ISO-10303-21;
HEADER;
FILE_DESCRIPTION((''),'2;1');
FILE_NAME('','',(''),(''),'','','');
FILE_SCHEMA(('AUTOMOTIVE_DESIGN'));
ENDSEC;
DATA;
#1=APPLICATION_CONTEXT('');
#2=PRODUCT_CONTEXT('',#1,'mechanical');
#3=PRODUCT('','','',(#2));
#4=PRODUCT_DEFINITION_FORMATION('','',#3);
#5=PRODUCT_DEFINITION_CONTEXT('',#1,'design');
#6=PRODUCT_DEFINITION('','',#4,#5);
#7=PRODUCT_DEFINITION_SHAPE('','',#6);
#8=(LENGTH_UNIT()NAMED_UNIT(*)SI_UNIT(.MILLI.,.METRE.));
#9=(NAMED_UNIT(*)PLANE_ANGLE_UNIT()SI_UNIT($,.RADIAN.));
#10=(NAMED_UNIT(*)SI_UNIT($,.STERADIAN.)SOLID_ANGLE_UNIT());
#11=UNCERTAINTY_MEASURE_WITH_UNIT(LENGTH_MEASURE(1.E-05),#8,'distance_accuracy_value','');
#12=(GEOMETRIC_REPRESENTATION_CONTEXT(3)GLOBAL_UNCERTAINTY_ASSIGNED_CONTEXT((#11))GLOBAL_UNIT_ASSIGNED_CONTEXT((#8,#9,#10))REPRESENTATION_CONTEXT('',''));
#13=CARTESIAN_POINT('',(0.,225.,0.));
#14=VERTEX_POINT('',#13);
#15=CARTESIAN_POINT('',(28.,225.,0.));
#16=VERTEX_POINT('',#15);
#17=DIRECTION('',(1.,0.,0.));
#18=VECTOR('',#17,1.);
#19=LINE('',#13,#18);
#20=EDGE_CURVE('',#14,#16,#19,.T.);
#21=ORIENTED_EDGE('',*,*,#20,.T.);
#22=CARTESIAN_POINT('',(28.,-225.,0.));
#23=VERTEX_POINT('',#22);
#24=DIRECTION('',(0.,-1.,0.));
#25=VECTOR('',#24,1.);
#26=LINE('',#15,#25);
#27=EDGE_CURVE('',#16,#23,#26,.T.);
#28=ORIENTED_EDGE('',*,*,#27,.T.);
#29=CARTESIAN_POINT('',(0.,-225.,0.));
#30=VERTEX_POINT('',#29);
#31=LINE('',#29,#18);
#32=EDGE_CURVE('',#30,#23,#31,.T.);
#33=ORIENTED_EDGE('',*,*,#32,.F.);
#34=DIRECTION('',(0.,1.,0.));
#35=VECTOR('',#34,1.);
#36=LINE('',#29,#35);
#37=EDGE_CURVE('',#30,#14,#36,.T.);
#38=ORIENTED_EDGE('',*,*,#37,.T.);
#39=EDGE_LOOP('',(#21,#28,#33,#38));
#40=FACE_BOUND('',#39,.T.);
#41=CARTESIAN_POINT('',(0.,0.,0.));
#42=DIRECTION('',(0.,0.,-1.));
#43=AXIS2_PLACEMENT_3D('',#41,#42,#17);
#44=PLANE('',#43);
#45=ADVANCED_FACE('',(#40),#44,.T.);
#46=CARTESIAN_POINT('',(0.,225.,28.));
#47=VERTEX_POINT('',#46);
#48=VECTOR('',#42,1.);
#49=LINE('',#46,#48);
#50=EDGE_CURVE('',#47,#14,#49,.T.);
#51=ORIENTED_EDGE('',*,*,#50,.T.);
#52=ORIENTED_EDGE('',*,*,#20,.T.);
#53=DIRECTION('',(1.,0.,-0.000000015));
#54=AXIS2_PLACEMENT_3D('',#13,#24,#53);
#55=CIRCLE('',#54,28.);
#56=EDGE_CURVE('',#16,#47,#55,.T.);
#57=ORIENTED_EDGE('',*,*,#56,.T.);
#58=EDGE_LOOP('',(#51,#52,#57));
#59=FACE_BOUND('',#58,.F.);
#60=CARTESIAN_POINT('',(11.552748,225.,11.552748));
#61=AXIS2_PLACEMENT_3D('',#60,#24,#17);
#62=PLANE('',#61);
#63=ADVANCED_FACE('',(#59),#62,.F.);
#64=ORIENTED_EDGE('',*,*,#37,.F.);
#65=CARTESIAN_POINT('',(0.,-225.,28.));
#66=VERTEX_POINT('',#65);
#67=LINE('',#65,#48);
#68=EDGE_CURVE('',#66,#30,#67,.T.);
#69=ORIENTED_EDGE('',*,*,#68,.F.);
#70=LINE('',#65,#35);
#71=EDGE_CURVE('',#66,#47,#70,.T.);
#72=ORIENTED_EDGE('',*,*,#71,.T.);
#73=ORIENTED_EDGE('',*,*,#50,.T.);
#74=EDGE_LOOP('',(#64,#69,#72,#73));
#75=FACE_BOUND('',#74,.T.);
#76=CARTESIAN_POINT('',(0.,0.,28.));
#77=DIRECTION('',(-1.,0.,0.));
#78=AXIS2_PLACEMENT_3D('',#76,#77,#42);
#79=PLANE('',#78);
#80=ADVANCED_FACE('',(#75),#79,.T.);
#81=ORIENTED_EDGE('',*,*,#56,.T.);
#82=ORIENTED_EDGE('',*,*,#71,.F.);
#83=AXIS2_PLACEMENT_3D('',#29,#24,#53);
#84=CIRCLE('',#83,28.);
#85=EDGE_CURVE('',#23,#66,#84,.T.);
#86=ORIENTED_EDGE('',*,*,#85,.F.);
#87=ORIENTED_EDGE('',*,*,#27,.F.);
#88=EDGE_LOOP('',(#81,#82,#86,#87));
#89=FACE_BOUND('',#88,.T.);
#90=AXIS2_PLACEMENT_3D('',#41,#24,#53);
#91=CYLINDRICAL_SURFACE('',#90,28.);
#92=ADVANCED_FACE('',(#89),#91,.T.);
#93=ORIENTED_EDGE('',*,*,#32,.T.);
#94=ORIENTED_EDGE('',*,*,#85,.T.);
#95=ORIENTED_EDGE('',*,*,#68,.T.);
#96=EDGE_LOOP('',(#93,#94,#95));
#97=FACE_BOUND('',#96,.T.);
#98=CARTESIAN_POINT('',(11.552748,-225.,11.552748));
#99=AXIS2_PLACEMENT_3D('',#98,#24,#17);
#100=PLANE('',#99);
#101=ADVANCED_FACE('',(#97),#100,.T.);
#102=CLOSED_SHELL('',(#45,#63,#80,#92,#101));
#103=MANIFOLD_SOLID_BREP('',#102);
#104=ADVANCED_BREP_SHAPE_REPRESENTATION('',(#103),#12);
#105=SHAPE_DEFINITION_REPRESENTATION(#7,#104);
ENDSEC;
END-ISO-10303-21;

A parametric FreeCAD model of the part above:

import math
import FreeCAD as App
import Part
import Sketcher
from FreeCAD import Vector
Q = App.Units.Quantity

doc = App.newDocument("Part")
body = doc.addObject("PartDesign::Body", "Body")

# Sketch on XZ plane
sketch1 = doc.addObject("Sketcher::SketchObject", "Sketch")
body.addObject(sketch1)
sketch1.AttachmentSupport = (doc.XZ_Plane, [""])
sketch1.MapMode = "FlatFace"
sketch1.addGeometry([
    Part.LineSegment(Vector(0, 0, 0), Vector(28, 0, 0)),
    Part.ArcOfCircle(Part.Circle(Vector(0, 0, 0), Vector(0, 0, 1), 28), math.radians(-0.000001), math.radians(90.000001)),
    Part.LineSegment(Vector(0, 28, 0), Vector(0, 0, 0)),
], False)
sketch1.addConstraint([
    Sketcher.Constraint("Coincident", 0, 2, 1, 1),
    Sketcher.Constraint("Coincident", 1, 2, 2, 1),
    Sketcher.Constraint("Coincident", 2, 2, 0, 1),
    Sketcher.Constraint("Horizontal", 0),
    Sketcher.Constraint("Vertical", 2),
    Sketcher.Constraint("Coincident", 1, 3, -1, 1),
    Sketcher.Constraint("Coincident", 2, 2, -1, 1),
    Sketcher.Constraint("Radius", 1, Q("28 mm")),
])
pad1 = doc.addObject("PartDesign::Pad", "Pad")
body.addObject(pad1)
pad1.Profile = sketch1
pad1.Length = 450
pad1.Midplane = True

doc.recompute()
